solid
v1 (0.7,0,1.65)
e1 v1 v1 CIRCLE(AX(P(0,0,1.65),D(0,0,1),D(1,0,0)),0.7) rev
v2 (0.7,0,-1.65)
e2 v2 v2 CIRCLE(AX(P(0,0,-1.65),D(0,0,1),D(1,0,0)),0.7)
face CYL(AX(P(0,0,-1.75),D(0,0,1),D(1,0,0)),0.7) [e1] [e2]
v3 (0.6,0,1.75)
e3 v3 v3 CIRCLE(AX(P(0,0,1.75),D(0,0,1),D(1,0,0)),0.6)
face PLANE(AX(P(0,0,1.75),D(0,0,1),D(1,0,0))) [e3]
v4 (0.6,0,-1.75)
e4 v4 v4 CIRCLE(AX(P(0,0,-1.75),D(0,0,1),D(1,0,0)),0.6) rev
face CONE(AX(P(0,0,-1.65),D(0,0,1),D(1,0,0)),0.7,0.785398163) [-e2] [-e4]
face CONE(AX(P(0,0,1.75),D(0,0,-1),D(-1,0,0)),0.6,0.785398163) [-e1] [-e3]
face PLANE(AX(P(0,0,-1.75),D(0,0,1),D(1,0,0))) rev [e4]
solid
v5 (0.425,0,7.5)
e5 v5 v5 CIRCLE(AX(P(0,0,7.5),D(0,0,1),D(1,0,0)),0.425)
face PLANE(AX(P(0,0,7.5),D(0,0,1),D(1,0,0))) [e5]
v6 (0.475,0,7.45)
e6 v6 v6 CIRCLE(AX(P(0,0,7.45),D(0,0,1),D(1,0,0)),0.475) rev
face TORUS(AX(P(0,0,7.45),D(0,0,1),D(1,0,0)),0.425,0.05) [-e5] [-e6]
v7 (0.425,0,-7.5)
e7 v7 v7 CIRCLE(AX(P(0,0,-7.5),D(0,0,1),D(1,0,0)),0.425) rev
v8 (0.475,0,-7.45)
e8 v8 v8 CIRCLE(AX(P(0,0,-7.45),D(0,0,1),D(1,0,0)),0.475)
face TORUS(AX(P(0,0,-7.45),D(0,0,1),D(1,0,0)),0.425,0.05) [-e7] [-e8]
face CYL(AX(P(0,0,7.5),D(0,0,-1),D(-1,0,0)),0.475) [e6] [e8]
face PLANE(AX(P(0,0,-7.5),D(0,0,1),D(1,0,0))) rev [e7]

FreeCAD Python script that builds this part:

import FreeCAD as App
import Part
import Sketcher

V = App.Vector
Q = App.Units.Quantity


def edges_at(feature, points):
    """Names of the edges that pass closest to the given points."""
    edges = feature.Shape.Edges
    near = lambda p: min(range(len(edges)), key=lambda i: edges[i].distToShape(Part.Vertex(*p))[0])
    return sorted({f"Edge{near(p) + 1}" for p in points})

doc = App.newDocument("Part")
body = doc.addObject("PartDesign::Body", "Body")

sketch1 = body.newObject("Sketcher::SketchObject", "Sketch")
sketch1.AttachmentSupport = (doc.getObject("XY_Plane"), [""])
sketch1.MapMode = "FlatFace"
sketch1.addGeometry(Part.Circle(V(0, 0, 0), V(0, 0, 1), 0.47), False)
sketch1.addConstraint([
    Sketcher.Constraint("Coincident", 0, 3, -1, 1),
    Sketcher.Constraint("Diameter", 0, Q("0.95 mm")),
])
pad1 = body.newObject("PartDesign::Pad", "Pad")
pad1.Profile = sketch1
pad1.Length = 15
pad1.Midplane = True
doc.recompute()

fillet = body.newObject("PartDesign::Fillet", "Fillet")
fillet.Base = (pad1, edges_at(pad1, [(-0.475, 0, -7.5), (-0.475, 0, 7.5)]))
fillet.Radius = 0.05
body2 = doc.addObject("PartDesign::Body", "Body001")

sketch2 = body2.newObject("Sketcher::SketchObject", "Sketch001")
sketch2.AttachmentSupport = (doc.getObject("XY_Plane001"), [""])
sketch2.MapMode = "FlatFace"
sketch2.AttachmentOffset = App.Placement(V(0, 0, 1.75), App.Rotation())
sketch2.addGeometry(Part.Circle(V(0, 0, 0), V(0, 0, 1), 0.7), False)
sketch2.addConstraint([
    Sketcher.Constraint("Coincident", 0, 3, -1, 1),
    Sketcher.Constraint("Diameter", 0, Q("1.4 mm")),
])
pad2 = body2.newObject("PartDesign::Pad", "Pad001")
pad2.Profile = sketch2
pad2.Length = 3.5
pad2.Reversed = True
doc.recompute()

chamfer = body2.newObject("PartDesign::Chamfer", "Chamfer")
chamfer.Base = (pad2, edges_at(pad2, [(-0.7, 0, 1.75), (-0.7, 0, -1.75)]))
chamfer.Size = 0.1

doc.recompute()
